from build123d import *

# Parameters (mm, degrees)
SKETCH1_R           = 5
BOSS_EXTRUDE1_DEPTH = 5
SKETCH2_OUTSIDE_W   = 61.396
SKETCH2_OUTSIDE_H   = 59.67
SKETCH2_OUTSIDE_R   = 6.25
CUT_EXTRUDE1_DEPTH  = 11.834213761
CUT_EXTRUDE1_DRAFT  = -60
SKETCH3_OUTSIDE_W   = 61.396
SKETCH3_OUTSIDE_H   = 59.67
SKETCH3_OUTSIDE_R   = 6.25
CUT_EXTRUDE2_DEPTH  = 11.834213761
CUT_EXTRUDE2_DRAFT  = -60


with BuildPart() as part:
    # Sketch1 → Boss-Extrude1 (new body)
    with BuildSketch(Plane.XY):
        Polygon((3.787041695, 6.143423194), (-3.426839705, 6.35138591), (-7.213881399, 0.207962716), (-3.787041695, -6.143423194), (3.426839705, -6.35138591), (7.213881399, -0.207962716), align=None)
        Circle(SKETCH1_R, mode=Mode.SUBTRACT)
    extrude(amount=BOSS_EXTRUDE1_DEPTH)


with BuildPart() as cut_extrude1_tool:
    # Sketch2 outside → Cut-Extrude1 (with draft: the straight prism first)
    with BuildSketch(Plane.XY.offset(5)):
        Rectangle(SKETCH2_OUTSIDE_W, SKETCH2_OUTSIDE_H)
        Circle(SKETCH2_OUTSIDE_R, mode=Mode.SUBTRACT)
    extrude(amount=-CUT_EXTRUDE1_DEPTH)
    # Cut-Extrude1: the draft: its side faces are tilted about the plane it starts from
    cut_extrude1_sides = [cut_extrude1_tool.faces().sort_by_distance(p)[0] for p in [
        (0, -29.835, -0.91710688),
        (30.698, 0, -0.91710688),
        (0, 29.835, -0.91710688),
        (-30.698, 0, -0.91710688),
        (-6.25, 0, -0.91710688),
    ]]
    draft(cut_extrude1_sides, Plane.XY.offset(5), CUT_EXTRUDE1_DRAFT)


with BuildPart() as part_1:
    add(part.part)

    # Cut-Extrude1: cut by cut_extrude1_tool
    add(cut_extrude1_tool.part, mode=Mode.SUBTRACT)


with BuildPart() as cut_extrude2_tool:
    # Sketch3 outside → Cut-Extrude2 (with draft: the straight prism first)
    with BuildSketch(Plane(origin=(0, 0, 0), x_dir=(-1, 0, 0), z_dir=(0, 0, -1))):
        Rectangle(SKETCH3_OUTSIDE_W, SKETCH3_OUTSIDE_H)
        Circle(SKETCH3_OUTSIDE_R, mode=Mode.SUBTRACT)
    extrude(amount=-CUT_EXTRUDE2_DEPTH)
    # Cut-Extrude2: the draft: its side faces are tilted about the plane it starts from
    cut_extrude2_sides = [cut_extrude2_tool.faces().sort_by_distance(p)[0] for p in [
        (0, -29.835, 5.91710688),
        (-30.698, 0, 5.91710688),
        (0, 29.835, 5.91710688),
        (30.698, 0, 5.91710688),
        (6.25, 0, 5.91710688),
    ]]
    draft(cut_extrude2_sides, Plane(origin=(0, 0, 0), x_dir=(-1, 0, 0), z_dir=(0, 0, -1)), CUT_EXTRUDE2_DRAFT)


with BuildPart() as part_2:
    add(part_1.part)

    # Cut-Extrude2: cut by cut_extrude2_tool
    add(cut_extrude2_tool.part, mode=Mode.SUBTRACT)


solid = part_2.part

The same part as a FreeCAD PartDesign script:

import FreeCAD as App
import Part
import Sketcher

V = App.Vector
Q = App.Units.Quantity


def faces_at(feature, points):
    """Names of the faces that lie closest to the given points."""
    faces = feature.Shape.Faces
    near = lambda p: min(range(len(faces)), key=lambda i: faces[i].distToShape(Part.Vertex(*p))[0])
    return sorted({f"Face{near(p) + 1}" for p in points})


def add_polygon(sketch, points):
    """Adds a closed chain of lines whose ends are joined by coincident constraints."""
    first, n = sketch.GeometryCount, len(points)
    for a, b in zip(points, points[1:] + points[:1]):
        sketch.addGeometry(Part.LineSegment(App.Vector(*a, 0), App.Vector(*b, 0)), False)
    for i in range(n):
        sketch.addConstraint(Sketcher.Constraint("Coincident", first + i, 2, first + (i + 1) % n, 1))

doc = App.newDocument("Part")
params = doc.addObject("Spreadsheet::Sheet", "Params")
for row, (alias, value) in enumerate([
    ("sketch1_diameter", "10 mm"),
    ("pad1_length", "5 mm"),
    ("sketch2_diameter", "12.5 mm"),
    ("sketch2_height", "59.67 mm"),
    ("pad2_length", "11.834214 mm"),
    ("draft_angle", "60 deg"),
    ("sketch3_diameter", "12.5 mm"),
    ("sketch3_height", "59.67 mm"),
    ("pad3_length", "11.834214 mm"),
    ("draft2_angle", "60 deg"),
], start=1):
    params.set(f"A{row}", alias)
    params.set(f"B{row}", "=" + value)
    params.setAlias(f"B{row}", alias)

body = doc.addObject("PartDesign::Body", "Body")

# Sketch on XY plane
sketch1 = body.newObject("Sketcher::SketchObject", "Sketch")
sketch1.AttachmentSupport = (doc.getObject("XY_Plane"), [""])
sketch1.MapMode = "FlatFace"
add_polygon(sketch1, [(4, 6), (-3, 6), (-7, 0), (-4, -6), (3, -6), (7, 0)])  # lines 0-5
sketch1.addGeometry(Part.Circle(V(0, 0, 0), V(0, 0, 1), 5), False)  # 6
sketch1.addConstraint(Sketcher.Constraint("Coincident", 6, 3, -1, 1))
sketch1.addConstraint(Sketcher.Constraint("Symmetric", 0, 2, 3, 2, -1, 1))
sketch1.addConstraint(Sketcher.Constraint("Symmetric", 1, 2, 4, 2, -1, 1))
sketch1.addConstraint(Sketcher.Constraint("Symmetric", 2, 2, 5, 2, -1, 1))
sketch1.addConstraint(Sketcher.Constraint("Equal", 0, 1))
sketch1.addConstraint(Sketcher.Constraint("Equal", 1, 2))
sketch1.addConstraint(Sketcher.Constraint("Diameter", 6, Q("10 mm")))
sketch1.addConstraint(Sketcher.Constraint("DistanceX", 2, 2, 0, 2, Q("0.360202 mm")))
sketch1.addConstraint(Sketcher.Constraint("Distance", 0, Q("7.216878 mm")))
sketch1.addConstraint(Sketcher.Constraint("DistanceX", 0, 2, -1, 1, Q("3.42684 mm")))
sketch1.addConstraint(Sketcher.Constraint("DistanceX", 1, 2, -1, 1, Q("7.213881 mm")))
sketch1.setExpression("Constraints[12]", "Params.sketch1_diameter")
pad1 = body.newObject("PartDesign::Pad", "Pad")
pad1.Profile = sketch1
pad1.setExpression("Length", "Params.pad1_length")
body2 = doc.addObject("PartDesign::Body", "Body001")

# Sketch on XY plane
sketch2 = body2.newObject("Sketcher::SketchObject", "Sketch001")
sketch2.AttachmentSupport = (doc.getObject("XY_Plane001"), [""])
sketch2.MapMode = "FlatFace"
sketch2.AttachmentOffset = App.Placement(V(0, 0, 5), App.Rotation())
add_polygon(sketch2, [(-31, 30), (-31, -30), (31, -30), (31, 30)])  # lines 0-3
sketch2.addGeometry(Part.Circle(V(0, 0, 0), V(0, 0, 1), 6), False)  # 4
sketch2.addConstraint(Sketcher.Constraint("Vertical", 0))
sketch2.addConstraint(Sketcher.Constraint("Horizontal", 1))
sketch2.addConstraint(Sketcher.Constraint("Vertical", 2))
sketch2.addConstraint(Sketcher.Constraint("Horizontal", 3))
sketch2.addConstraint(Sketcher.Constraint("Coincident", 4, 3, -1, 1))
sketch2.addConstraint(Sketcher.Constraint("Symmetric", 0, 2, 2, 2, -1, 1))
sketch2.addConstraint(Sketcher.Constraint("Diameter", 4, Q("12.5 mm")))
sketch2.addConstraint(Sketcher.Constraint("DistanceY", 0, 2, 0, 1, Q("59.67 mm")))
sketch2.addConstraint(Sketcher.Constraint("DistanceX", 1, 1, 1, 2, Q("61.396 mm")))
sketch2.setExpression("Constraints[10]", "Params.sketch2_diameter")
sketch2.setExpression("Constraints[11]", "Params.sketch2_height")
pad2 = body2.newObject("PartDesign::Pad", "Pad001")
pad2.Profile = sketch2
pad2.setExpression("Length", "Params.pad2_length")
pad2.Reversed = True
doc.recompute()

datumplane = body2.newObject("PartDesign::Plane", "DatumPlane")
datumplane.AttachmentSupport = (doc.getObject("XY_Plane001"), [""])
datumplane.MapMode = "FlatFace"
datumplane.AttachmentOffset = App.Placement(V(0, 0, 5), App.Rotation())
draft = body2.newObject("PartDesign::Draft", "Draft")
draft.Base = (pad2, faces_at(pad2, [
    (0, -29.835, -0.917),
    (30.698, 0, -0.917),
    (0, 29.835, -0.917),
    (-30.698, 0, -0.917),
    (-6.25, 0, -0.917),
]))
draft.NeutralPlane = (datumplane, [""])
draft.setExpression("Angle", "Params.draft_angle")
draft.Reversed = True
doc.recompute()

boolean = body.newObject("PartDesign::Boolean", "Boolean")
boolean.Type = "Cut"
boolean.addObjects([body2])
body3 = doc.addObject("PartDesign::Body", "Body002")

# Sketch on XY plane
sketch3 = body3.newObject("Sketcher::SketchObject", "Sketch002")
sketch3.AttachmentSupport = (doc.getObject("XY_Plane002"), [""])
sketch3.MapMode = "FlatFace"
add_polygon(sketch3, [(31, 30), (31, -30), (-31, -30), (-31, 30)])  # lines 0-3
sketch3.addGeometry(Part.Circle(V(0, 0, 0), V(0, 0, 1), 6), False)  # 4
sketch3.addConstraint(Sketcher.Constraint("Vertical", 0))
sketch3.addConstraint(Sketcher.Constraint("Horizontal", 1))
sketch3.addConstraint(Sketcher.Constraint("Vertical", 2))
sketch3.addConstraint(Sketcher.Constraint("Horizontal", 3))
sketch3.addConstraint(Sketcher.Constraint("Coincident", 4, 3, -1, 1))
sketch3.addConstraint(Sketcher.Constraint("Symmetric", 0, 2, 2, 2, -1, 1))
sketch3.addConstraint(Sketcher.Constraint("Diameter", 4, Q("12.5 mm")))
sketch3.addConstraint(Sketcher.Constraint("DistanceY", 0, 2, 0, 1, Q("59.67 mm")))
sketch3.addConstraint(Sketcher.Constraint("DistanceX", 1, 2, 1, 1, Q("61.396 mm")))
sketch3.setExpression("Constraints[10]", "Params.sketch3_diameter")
sketch3.setExpression("Constraints[11]", "Params.sketch3_height")
pad3 = body3.newObject("PartDesign::Pad", "Pad002")
pad3.Profile = sketch3
pad3.setExpression("Length", "Params.pad3_length")
doc.recompute()

draft2 = body3.newObject("PartDesign::Draft", "Draft001")
draft2.Base = (pad3, faces_at(pad3, [
    (0, -29.835, 5.917),
    (-30.698, 0, 5.917),
    (0, 29.835, 5.917),
    (30.698, 0, 5.917),
    (6.25, 0, 5.917),
]))
draft2.NeutralPlane = (doc.getObject("XY_Plane002"), [""])
draft2.setExpression("Angle", "Params.draft2_angle")
draft2.Reversed = False
doc.recompute()

boolean2 = body.newObject("PartDesign::Boolean", "Boolean001")
boolean2.Type = "Cut"
boolean2.addObjects([body3])

doc.recompute()
